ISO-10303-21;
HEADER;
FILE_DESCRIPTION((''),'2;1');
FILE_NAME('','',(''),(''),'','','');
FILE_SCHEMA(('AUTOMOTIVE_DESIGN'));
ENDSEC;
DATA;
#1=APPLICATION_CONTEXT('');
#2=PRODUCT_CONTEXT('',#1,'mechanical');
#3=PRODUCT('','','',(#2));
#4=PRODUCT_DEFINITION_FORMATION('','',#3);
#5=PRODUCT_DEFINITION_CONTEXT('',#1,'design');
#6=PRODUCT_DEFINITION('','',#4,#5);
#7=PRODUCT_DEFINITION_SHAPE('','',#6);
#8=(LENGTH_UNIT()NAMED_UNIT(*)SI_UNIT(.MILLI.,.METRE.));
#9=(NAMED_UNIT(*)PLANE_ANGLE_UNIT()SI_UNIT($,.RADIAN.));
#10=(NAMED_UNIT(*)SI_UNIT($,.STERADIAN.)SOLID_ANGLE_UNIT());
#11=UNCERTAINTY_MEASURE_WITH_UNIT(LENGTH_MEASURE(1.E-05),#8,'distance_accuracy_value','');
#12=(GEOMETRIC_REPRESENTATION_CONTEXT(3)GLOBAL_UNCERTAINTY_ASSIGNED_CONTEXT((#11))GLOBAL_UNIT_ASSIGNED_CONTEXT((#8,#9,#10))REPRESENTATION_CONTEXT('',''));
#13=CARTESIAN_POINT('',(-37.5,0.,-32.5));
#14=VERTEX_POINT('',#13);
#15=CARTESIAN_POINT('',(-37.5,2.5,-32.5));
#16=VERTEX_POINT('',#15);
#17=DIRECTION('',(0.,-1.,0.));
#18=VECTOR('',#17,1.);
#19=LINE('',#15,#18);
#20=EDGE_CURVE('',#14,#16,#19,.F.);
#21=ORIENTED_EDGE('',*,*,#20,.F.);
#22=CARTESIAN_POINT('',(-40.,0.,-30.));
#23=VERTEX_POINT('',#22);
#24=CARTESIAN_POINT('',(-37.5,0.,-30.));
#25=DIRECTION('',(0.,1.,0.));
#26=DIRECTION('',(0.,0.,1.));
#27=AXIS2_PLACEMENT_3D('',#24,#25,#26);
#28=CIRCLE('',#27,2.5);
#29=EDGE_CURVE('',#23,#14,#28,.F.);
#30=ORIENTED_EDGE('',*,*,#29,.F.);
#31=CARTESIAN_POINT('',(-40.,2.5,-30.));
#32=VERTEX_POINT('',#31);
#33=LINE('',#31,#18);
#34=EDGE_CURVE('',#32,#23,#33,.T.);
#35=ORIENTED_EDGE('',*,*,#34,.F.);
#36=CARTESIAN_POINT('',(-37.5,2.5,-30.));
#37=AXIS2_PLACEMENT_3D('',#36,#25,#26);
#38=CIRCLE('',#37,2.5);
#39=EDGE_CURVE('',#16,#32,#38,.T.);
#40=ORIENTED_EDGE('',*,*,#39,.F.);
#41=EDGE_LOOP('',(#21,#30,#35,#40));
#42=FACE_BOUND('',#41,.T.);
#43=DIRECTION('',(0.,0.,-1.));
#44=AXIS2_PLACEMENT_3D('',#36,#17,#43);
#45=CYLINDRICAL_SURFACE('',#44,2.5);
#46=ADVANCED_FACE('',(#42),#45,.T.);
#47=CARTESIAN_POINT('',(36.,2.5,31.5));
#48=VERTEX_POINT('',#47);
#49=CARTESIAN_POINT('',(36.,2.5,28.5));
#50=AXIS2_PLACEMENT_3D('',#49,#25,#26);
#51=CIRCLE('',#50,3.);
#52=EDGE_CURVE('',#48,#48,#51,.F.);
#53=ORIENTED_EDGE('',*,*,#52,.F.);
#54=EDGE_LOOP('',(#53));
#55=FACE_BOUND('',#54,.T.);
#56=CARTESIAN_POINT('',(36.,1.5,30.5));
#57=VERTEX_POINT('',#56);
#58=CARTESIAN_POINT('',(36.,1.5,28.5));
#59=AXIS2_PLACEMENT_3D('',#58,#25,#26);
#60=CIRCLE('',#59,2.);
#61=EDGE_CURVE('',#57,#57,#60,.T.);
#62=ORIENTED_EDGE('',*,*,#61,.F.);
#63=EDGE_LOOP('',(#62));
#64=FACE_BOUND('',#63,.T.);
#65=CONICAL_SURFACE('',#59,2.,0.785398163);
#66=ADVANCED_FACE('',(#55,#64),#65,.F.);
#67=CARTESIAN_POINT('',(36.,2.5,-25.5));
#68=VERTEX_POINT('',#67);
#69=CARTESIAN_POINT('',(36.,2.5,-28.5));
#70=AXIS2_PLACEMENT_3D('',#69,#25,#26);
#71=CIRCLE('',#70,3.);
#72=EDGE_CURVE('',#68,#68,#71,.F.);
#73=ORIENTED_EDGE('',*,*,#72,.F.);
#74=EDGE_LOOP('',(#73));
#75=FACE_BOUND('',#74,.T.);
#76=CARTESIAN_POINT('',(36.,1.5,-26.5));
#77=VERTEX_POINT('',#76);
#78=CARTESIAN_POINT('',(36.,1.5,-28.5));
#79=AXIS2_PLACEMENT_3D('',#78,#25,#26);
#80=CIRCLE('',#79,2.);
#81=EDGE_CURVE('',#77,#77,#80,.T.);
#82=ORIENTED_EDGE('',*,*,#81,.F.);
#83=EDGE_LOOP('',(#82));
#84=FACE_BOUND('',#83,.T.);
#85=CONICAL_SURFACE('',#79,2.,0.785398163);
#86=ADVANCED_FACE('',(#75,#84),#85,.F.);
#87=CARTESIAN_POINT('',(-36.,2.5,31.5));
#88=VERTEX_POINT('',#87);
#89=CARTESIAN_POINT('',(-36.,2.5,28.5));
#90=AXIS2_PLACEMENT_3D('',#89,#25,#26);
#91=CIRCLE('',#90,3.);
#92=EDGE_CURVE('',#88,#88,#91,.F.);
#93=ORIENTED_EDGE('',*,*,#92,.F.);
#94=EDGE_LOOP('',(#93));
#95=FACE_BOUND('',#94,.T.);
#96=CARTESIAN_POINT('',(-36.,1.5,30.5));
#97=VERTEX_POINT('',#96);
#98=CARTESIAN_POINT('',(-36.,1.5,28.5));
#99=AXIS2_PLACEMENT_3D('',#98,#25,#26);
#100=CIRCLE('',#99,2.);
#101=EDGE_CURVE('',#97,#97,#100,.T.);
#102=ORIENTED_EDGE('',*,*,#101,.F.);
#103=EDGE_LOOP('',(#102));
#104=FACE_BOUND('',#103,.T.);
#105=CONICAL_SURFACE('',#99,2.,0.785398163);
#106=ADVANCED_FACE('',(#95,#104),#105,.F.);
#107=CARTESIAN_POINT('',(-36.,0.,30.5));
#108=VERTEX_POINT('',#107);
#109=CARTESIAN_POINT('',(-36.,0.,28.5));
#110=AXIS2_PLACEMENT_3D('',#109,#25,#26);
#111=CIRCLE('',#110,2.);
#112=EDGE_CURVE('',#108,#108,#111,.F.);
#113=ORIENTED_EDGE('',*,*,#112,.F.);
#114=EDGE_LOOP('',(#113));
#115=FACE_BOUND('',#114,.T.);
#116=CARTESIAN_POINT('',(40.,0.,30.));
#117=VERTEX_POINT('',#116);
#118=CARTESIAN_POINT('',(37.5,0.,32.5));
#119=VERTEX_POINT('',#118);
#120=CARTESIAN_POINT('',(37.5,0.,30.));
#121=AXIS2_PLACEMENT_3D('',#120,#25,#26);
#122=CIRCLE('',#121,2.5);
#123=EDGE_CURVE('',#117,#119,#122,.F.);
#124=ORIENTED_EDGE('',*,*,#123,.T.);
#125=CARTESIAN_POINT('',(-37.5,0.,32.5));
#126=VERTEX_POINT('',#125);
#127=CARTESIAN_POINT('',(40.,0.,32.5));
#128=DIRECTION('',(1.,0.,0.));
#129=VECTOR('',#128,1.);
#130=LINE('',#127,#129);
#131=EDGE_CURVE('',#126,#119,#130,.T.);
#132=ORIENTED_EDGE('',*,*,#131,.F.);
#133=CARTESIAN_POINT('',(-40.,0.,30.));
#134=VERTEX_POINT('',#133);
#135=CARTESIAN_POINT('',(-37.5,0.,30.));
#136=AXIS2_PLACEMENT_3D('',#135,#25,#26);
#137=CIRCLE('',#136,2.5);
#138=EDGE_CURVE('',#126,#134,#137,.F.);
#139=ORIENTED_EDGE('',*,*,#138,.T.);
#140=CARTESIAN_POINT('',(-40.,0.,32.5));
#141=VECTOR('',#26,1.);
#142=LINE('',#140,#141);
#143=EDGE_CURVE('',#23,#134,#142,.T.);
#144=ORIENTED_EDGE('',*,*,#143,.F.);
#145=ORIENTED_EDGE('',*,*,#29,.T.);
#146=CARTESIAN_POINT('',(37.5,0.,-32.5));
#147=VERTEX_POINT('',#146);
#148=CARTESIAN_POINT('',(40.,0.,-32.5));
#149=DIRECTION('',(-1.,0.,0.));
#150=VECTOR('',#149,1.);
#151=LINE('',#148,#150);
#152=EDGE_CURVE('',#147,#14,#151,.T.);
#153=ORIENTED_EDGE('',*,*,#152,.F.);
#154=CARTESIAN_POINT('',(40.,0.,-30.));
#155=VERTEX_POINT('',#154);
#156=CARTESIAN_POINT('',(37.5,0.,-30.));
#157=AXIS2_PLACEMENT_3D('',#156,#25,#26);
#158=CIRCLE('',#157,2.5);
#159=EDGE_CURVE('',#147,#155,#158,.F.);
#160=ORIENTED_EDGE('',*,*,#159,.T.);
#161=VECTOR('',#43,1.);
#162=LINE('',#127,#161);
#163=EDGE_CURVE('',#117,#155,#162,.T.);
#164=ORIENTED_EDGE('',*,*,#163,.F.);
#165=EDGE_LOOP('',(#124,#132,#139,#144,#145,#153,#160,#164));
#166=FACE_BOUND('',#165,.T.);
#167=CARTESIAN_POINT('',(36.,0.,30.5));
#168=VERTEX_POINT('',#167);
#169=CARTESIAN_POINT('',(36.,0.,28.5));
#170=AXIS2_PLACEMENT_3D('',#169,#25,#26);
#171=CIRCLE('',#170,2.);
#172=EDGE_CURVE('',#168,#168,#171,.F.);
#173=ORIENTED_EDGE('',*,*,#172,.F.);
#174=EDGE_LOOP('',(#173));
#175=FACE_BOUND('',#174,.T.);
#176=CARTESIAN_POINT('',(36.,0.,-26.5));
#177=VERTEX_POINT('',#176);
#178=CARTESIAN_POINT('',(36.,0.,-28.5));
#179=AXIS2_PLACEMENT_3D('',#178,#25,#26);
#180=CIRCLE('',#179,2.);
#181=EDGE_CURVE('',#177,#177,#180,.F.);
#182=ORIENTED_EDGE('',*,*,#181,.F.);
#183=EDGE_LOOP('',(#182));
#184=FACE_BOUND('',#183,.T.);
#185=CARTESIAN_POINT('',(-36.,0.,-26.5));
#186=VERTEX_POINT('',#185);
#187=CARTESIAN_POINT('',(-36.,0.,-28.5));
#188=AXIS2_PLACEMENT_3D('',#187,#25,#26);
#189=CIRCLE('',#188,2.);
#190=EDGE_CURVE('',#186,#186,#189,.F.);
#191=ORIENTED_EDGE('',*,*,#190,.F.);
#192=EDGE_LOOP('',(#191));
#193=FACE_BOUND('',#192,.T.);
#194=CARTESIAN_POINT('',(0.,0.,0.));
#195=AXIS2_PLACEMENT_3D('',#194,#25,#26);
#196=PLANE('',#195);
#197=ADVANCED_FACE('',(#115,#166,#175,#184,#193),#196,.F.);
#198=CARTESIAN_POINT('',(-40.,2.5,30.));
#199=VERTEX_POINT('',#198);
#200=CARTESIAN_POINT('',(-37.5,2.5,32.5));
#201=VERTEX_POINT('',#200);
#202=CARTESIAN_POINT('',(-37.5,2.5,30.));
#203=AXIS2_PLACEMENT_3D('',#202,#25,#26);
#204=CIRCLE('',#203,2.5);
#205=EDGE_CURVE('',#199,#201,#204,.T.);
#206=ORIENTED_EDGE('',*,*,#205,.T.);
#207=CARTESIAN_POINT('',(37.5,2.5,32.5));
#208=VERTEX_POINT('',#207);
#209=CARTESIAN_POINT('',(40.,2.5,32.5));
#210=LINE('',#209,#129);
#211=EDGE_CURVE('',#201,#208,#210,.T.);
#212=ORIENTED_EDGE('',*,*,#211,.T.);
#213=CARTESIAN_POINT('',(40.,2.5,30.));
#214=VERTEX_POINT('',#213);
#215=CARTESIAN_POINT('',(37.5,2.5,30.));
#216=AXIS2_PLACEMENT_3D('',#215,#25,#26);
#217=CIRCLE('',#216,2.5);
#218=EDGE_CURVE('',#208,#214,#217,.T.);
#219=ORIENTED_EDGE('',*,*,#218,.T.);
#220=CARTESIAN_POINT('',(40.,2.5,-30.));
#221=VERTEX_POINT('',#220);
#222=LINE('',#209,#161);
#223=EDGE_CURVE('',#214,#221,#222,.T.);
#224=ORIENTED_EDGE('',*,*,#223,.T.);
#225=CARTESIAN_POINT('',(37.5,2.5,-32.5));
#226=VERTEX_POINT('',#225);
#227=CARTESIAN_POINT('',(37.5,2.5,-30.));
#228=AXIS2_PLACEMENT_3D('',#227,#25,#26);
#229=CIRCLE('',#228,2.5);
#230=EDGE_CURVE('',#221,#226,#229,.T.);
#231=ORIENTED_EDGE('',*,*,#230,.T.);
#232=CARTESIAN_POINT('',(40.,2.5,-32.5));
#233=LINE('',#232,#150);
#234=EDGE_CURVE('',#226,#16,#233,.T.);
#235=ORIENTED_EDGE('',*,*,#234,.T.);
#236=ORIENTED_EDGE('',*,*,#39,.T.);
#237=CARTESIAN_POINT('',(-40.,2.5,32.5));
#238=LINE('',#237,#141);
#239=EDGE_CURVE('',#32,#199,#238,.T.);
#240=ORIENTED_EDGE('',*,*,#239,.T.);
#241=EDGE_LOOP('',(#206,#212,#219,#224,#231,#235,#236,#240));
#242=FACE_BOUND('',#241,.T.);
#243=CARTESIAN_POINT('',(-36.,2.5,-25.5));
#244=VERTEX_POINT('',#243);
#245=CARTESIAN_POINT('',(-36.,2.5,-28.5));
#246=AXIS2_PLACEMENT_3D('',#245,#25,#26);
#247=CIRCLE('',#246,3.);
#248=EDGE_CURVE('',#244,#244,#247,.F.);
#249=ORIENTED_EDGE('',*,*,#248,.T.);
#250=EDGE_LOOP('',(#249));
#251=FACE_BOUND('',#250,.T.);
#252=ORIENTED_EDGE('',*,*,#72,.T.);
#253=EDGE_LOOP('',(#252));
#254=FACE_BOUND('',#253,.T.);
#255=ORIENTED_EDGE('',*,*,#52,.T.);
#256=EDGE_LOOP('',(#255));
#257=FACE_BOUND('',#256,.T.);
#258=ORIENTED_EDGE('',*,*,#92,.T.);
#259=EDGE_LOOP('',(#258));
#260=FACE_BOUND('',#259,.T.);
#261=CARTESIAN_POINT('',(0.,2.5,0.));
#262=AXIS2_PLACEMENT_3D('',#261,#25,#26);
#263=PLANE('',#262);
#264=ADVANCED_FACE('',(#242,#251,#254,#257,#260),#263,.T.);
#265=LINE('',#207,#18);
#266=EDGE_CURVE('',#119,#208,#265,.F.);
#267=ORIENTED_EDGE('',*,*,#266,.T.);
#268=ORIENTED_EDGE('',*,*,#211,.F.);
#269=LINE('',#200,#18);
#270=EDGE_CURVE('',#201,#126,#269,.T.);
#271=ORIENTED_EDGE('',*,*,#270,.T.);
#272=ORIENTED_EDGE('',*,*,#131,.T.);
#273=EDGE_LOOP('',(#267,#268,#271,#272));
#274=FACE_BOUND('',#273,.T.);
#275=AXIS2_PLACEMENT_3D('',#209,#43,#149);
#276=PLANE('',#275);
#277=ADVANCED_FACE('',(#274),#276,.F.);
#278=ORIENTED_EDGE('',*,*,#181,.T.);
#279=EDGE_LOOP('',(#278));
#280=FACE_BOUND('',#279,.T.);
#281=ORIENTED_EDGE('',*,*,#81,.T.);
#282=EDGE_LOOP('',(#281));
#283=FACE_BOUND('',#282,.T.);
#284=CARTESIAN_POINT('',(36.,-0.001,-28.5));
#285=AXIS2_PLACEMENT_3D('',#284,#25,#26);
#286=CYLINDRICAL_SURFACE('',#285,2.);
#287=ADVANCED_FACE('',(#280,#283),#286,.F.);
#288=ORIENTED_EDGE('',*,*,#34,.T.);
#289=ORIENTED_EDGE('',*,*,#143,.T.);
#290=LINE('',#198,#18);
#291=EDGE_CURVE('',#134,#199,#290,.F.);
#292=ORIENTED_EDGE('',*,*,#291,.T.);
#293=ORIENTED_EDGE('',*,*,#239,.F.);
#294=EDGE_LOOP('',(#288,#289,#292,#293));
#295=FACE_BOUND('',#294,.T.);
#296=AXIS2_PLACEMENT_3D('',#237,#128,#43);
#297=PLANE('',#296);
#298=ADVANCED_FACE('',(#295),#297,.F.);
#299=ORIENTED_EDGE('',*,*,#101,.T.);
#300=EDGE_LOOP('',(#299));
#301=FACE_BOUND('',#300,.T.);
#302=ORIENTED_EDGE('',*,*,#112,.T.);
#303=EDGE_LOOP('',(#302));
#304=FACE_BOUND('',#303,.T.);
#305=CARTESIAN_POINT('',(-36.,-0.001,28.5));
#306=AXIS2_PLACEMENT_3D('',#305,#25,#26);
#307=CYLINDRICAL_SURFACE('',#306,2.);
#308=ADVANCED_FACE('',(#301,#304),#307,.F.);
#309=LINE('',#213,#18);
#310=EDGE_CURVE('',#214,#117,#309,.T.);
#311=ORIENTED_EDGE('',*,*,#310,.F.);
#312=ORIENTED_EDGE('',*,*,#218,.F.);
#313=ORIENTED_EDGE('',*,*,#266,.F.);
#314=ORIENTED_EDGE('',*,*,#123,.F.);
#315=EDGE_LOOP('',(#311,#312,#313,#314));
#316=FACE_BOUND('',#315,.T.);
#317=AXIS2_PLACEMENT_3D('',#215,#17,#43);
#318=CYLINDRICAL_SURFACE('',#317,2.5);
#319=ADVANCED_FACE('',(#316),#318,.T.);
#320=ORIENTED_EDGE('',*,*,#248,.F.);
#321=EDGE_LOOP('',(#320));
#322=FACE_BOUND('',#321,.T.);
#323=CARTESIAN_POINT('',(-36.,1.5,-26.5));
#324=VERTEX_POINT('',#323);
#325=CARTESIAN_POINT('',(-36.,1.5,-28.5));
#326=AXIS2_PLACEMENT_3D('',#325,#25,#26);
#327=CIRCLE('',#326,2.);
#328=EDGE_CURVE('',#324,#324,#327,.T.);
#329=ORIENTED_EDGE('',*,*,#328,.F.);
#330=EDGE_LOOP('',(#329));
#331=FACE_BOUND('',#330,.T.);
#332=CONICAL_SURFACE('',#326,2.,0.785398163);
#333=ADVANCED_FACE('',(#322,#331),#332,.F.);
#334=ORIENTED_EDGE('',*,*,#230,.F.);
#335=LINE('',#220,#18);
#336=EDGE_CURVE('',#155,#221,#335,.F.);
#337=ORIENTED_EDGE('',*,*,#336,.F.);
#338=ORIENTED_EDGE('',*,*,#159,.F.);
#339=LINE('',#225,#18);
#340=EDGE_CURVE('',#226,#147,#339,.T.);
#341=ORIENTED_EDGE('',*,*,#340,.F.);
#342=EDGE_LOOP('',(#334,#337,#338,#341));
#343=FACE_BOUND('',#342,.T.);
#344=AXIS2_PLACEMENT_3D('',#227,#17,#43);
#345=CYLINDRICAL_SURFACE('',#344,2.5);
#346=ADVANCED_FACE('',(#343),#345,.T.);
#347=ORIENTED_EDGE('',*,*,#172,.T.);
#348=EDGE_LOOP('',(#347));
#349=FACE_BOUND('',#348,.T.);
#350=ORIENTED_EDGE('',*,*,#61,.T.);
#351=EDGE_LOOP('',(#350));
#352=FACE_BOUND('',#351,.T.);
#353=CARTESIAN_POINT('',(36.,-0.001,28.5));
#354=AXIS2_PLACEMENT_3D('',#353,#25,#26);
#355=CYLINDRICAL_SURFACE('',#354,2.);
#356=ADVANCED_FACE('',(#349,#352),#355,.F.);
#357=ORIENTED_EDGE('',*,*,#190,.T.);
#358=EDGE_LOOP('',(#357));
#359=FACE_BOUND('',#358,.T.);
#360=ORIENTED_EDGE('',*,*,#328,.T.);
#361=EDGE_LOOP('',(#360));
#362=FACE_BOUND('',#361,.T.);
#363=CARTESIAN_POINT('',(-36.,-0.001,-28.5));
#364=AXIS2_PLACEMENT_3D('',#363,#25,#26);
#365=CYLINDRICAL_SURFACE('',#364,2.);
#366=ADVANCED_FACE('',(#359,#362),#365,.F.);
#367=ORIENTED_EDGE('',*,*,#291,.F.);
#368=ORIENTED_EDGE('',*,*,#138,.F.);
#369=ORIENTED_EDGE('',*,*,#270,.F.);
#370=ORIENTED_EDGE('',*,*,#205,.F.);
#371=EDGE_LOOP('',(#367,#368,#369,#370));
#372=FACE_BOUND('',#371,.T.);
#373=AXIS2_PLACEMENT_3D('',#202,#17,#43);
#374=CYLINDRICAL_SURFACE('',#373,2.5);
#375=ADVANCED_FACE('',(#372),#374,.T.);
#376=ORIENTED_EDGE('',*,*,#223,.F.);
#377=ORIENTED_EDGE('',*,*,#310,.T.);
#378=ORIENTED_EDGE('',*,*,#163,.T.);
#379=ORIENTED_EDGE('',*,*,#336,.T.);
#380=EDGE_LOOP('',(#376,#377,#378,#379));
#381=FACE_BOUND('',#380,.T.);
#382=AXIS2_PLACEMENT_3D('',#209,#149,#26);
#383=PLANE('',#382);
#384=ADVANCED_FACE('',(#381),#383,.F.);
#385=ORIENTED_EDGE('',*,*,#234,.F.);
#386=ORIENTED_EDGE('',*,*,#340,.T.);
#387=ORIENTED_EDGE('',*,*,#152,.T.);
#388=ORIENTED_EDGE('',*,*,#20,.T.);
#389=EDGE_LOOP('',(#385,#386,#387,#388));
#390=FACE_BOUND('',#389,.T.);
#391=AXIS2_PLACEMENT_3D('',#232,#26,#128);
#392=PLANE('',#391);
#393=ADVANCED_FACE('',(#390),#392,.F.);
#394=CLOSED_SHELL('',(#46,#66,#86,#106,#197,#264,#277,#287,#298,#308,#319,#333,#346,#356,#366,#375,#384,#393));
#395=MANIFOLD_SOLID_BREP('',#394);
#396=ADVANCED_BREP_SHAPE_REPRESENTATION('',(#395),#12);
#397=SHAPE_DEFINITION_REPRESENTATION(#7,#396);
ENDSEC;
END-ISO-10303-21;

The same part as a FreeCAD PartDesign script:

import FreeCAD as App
import Part
import Sketcher

V = App.Vector
Q = App.Units.Quantity


def edges_at(feature, points):
    """Names of the edges that pass closest to the given points."""
    edges = feature.Shape.Edges
    near = lambda p: min(range(len(edges)), key=lambda i: edges[i].distToShape(Part.Vertex(*p))[0])
    return sorted({f"Edge{near(p) + 1}" for p in points})


def add_polygon(sketch, points):
    """Adds a closed chain of lines whose ends are joined by coincident constraints."""
    first, n = sketch.GeometryCount, len(points)
    for a, b in zip(points, points[1:] + points[:1]):
        sketch.addGeometry(Part.LineSegment(App.Vector(*a, 0), App.Vector(*b, 0)), False)
    for i in range(n):
        sketch.addConstraint(Sketcher.Constraint("Coincident", first + i, 2, first + (i + 1) % n, 1))

doc = App.newDocument("Part")
body = doc.addObject("PartDesign::Body", "Body")

# Sketch on XZ plane
sketch1 = body.newObject("Sketcher::SketchObject", "Sketch")
sketch1.AttachmentSupport = (doc.getObject("XZ_Plane"), [""])
sketch1.MapMode = "FlatFace"
add_polygon(sketch1, [(-40, -32), (-40, 32), (40, 32), (40, -32)])  # lines 0-3
sketch1.addConstraint([
    Sketcher.Constraint("Vertical", 0),
    Sketcher.Constraint("Horizontal", 1),
    Sketcher.Constraint("Vertical", 2),
    Sketcher.Constraint("Horizontal", 3),
    Sketcher.Constraint("Symmetric", 0, 2, 2, 2, -1, 1),
    Sketcher.Constraint("DistanceX", 1, 1, 1, 2, Q("80 mm")),
    Sketcher.Constraint("DistanceY", 0, 1, 0, 2, Q("65 mm")),
])
pad1 = body.newObject("PartDesign::Pad", "Pad")
pad1.Profile = sketch1
pad1.Length = 2.5
pad1.Reversed = True

# Sketch on XZ plane
sketch2 = body.newObject("Sketcher::SketchObject", "Sketch001")
sketch2.AttachmentSupport = (doc.getObject("XZ_Plane"), [""])
sketch2.MapMode = "FlatFace"
sketch2.AttachmentOffset = App.Placement(V(0, 0, -2.5), App.Rotation())
sketch2.addGeometry(Part.Circle(V(-36, -28.5, 0), V(0, 0, 1), 2), False)
sketch2.addConstraint([
    Sketcher.Constraint("Diameter", 0, Q("4 mm")),
    Sketcher.Constraint("DistanceX", 0, 3, -1, 1, Q("36 mm")),
    Sketcher.Constraint("DistanceY", 0, 3, -1, 1, Q("28.5 mm")),
])
pocket1 = body.newObject("PartDesign::Pocket", "Pocket")
pocket1.Profile = sketch2
pocket1.Type = "UpToFirst"
pocket1.Reversed = True

# Sketch on XZ plane
sketch3 = body.newObject("Sketcher::SketchObject", "Sketch002")
sketch3.AttachmentSupport = (doc.getObject("XZ_Plane"), [""])
sketch3.MapMode = "FlatFace"
sketch3.AttachmentOffset = App.Placement(V(0, 0, -2.5), App.Rotation())
sketch3.addGeometry(Part.Circle(V(36, -28.5, 0), V(0, 0, 1), 2), False)
sketch3.addConstraint([
    Sketcher.Constraint("Diameter", 0, Q("4 mm")),
    Sketcher.Constraint("DistanceX", -1, 1, 0, 3, Q("36 mm")),
    Sketcher.Constraint("DistanceY", 0, 3, -1, 1, Q("28.5 mm")),
])
pocket2 = body.newObject("PartDesign::Pocket", "Pocket001")
pocket2.Profile = sketch3
pocket2.Type = "UpToFirst"
pocket2.Reversed = True

# Sketch on XZ plane
sketch4 = body.newObject("Sketcher::SketchObject", "Sketch003")
sketch4.AttachmentSupport = (doc.getObject("XZ_Plane"), [""])
sketch4.MapMode = "FlatFace"
sketch4.AttachmentOffset = App.Placement(V(0, 0, -2.5), App.Rotation())
sketch4.addGeometry(Part.Circle(V(-36, 28.5, 0), V(0, 0, 1), 2), False)
sketch4.addConstraint([
    Sketcher.Constraint("Diameter", 0, Q("4 mm")),
    Sketcher.Constraint("DistanceX", 0, 3, -1, 1, Q("36 mm")),
    Sketcher.Constraint("DistanceY", -1, 1, 0, 3, Q("28.5 mm")),
])
pocket3 = body.newObject("PartDesign::Pocket", "Pocket002")
pocket3.Profile = sketch4
pocket3.Type = "UpToFirst"
pocket3.Reversed = True

# Sketch on XZ plane
sketch5 = body.newObject("Sketcher::SketchObject", "Sketch004")
sketch5.AttachmentSupport = (doc.getObject("XZ_Plane"), [""])
sketch5.MapMode = "FlatFace"
sketch5.AttachmentOffset = App.Placement(V(0, 0, -2.5), App.Rotation())
sketch5.addGeometry(Part.Circle(V(36, 28.5, 0), V(0, 0, 1), 2), False)
sketch5.addConstraint([
    Sketcher.Constraint("Diameter", 0, Q("4 mm")),
    Sketcher.Constraint("DistanceX", -1, 1, 0, 3, Q("36 mm")),
    Sketcher.Constraint("DistanceY", -1, 1, 0, 3, Q("28.5 mm")),
])
pocket4 = body.newObject("PartDesign::Pocket", "Pocket003")
pocket4.Profile = sketch5
pocket4.Type = "UpToFirst"
pocket4.Reversed = True
doc.recompute()

fillet = body.newObject("PartDesign::Fillet", "Fillet")
fillet.Base = (pocket4, edges_at(pocket4, [
    (-40, 1.25, -32.5),
    (40, 1.25, -32.5),
    (40, 1.25, 32.5),
    (-40, 1.25, 32.5),
]))
fillet.Radius = 2.5
doc.recompute()

chamfer = body.newObject("PartDesign::Chamfer", "Chamfer")
chamfer.Base = (fillet, edges_at(fillet, [
    (36, 2.5, -30.5),
    (-36, 2.5, 26.5),
    (36, 2.5, 26.5),
    (-36, 2.5, -30.5),
]))
chamfer.Size = 1

doc.recompute()
